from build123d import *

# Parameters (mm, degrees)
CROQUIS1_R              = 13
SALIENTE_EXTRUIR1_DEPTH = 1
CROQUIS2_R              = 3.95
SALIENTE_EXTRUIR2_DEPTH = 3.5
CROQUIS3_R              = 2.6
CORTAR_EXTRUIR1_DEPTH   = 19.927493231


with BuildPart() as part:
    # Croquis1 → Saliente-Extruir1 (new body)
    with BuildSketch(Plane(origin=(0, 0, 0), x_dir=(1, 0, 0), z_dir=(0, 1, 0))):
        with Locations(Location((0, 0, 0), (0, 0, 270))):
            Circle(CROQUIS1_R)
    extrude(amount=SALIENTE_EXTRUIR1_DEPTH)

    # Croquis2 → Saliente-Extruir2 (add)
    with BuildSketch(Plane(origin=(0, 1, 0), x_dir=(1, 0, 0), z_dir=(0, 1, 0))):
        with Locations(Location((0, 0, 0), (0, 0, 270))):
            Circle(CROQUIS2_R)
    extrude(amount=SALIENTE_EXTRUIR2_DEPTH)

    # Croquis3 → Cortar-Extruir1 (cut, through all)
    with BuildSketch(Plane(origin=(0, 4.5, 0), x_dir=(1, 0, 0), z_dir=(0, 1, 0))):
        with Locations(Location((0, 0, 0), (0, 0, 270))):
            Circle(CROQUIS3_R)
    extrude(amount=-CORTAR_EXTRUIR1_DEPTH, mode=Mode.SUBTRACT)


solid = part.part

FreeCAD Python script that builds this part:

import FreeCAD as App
import Part
import Sketcher
Q = App.Units.Quantity

doc = App.newDocument("Part")
body = doc.addObject("PartDesign::Body", "Body")

# Sketch on XZ plane
sketch1 = doc.addObject("Sketcher::SketchObject", "Sketch")
body.addObject(sketch1)
sketch1.AttachmentSupport = (doc.XZ_Plane, [""])
sketch1.MapMode = "FlatFace"
sketch1.addGeometry(Part.Circle(App.Vector(0, 0, 0), App.Vector(0, 0, 1), 13), False)
sketch1.addConstraint(Sketcher.Constraint("Coincident", 0, 3, -1, 1))
sketch1.addConstraint(Sketcher.Constraint("Diameter", 0, Q("26 mm")))
pad1 = doc.addObject("PartDesign::Pad", "Pad")
body.addObject(pad1)
pad1.Profile = sketch1
pad1.Length = 1
pad1.Reversed = True

# Sketch on XZ plane
sketch2 = doc.addObject("Sketcher::SketchObject", "Sketch001")
body.addObject(sketch2)
sketch2.AttachmentSupport = (doc.XZ_Plane, [""])
sketch2.MapMode = "FlatFace"
sketch2.AttachmentOffset = App.Placement(App.Vector(0, 0, -1), App.Rotation())
sketch2.addGeometry(Part.Circle(App.Vector(0, 0, 0), App.Vector(0, 0, 1), 3.95), False)
sketch2.addConstraint(Sketcher.Constraint("Coincident", 0, 3, -1, 1))
sketch2.addConstraint(Sketcher.Constraint("Diameter", 0, Q("7.9 mm")))
pad2 = doc.addObject("PartDesign::Pad", "Pad001")
body.addObject(pad2)
pad2.Profile = sketch2
pad2.Length = 3.5
pad2.Reversed = True

# Sketch on XZ plane
sketch3 = doc.addObject("Sketcher::SketchObject", "Sketch002")
body.addObject(sketch3)
sketch3.AttachmentSupport = (doc.XZ_Plane, [""])
sketch3.MapMode = "FlatFace"
sketch3.AttachmentOffset = App.Placement(App.Vector(0, 0, -4.5), App.Rotation())
sketch3.addGeometry(Part.Circle(App.Vector(0, 0, 0), App.Vector(0, 0, 1), 2.6), False)
sketch3.addConstraint(Sketcher.Constraint("Coincident", 0, 3, -1, 1))
sketch3.addConstraint(Sketcher.Constraint("Diameter", 0, Q("5.2 mm")))
pocket1 = doc.addObject("PartDesign::Pocket", "Pocket")
body.addObject(pocket1)
pocket1.Profile = sketch3
pocket1.Type = "ThroughAll"
pocket1.Reversed = True

doc.recompute()
